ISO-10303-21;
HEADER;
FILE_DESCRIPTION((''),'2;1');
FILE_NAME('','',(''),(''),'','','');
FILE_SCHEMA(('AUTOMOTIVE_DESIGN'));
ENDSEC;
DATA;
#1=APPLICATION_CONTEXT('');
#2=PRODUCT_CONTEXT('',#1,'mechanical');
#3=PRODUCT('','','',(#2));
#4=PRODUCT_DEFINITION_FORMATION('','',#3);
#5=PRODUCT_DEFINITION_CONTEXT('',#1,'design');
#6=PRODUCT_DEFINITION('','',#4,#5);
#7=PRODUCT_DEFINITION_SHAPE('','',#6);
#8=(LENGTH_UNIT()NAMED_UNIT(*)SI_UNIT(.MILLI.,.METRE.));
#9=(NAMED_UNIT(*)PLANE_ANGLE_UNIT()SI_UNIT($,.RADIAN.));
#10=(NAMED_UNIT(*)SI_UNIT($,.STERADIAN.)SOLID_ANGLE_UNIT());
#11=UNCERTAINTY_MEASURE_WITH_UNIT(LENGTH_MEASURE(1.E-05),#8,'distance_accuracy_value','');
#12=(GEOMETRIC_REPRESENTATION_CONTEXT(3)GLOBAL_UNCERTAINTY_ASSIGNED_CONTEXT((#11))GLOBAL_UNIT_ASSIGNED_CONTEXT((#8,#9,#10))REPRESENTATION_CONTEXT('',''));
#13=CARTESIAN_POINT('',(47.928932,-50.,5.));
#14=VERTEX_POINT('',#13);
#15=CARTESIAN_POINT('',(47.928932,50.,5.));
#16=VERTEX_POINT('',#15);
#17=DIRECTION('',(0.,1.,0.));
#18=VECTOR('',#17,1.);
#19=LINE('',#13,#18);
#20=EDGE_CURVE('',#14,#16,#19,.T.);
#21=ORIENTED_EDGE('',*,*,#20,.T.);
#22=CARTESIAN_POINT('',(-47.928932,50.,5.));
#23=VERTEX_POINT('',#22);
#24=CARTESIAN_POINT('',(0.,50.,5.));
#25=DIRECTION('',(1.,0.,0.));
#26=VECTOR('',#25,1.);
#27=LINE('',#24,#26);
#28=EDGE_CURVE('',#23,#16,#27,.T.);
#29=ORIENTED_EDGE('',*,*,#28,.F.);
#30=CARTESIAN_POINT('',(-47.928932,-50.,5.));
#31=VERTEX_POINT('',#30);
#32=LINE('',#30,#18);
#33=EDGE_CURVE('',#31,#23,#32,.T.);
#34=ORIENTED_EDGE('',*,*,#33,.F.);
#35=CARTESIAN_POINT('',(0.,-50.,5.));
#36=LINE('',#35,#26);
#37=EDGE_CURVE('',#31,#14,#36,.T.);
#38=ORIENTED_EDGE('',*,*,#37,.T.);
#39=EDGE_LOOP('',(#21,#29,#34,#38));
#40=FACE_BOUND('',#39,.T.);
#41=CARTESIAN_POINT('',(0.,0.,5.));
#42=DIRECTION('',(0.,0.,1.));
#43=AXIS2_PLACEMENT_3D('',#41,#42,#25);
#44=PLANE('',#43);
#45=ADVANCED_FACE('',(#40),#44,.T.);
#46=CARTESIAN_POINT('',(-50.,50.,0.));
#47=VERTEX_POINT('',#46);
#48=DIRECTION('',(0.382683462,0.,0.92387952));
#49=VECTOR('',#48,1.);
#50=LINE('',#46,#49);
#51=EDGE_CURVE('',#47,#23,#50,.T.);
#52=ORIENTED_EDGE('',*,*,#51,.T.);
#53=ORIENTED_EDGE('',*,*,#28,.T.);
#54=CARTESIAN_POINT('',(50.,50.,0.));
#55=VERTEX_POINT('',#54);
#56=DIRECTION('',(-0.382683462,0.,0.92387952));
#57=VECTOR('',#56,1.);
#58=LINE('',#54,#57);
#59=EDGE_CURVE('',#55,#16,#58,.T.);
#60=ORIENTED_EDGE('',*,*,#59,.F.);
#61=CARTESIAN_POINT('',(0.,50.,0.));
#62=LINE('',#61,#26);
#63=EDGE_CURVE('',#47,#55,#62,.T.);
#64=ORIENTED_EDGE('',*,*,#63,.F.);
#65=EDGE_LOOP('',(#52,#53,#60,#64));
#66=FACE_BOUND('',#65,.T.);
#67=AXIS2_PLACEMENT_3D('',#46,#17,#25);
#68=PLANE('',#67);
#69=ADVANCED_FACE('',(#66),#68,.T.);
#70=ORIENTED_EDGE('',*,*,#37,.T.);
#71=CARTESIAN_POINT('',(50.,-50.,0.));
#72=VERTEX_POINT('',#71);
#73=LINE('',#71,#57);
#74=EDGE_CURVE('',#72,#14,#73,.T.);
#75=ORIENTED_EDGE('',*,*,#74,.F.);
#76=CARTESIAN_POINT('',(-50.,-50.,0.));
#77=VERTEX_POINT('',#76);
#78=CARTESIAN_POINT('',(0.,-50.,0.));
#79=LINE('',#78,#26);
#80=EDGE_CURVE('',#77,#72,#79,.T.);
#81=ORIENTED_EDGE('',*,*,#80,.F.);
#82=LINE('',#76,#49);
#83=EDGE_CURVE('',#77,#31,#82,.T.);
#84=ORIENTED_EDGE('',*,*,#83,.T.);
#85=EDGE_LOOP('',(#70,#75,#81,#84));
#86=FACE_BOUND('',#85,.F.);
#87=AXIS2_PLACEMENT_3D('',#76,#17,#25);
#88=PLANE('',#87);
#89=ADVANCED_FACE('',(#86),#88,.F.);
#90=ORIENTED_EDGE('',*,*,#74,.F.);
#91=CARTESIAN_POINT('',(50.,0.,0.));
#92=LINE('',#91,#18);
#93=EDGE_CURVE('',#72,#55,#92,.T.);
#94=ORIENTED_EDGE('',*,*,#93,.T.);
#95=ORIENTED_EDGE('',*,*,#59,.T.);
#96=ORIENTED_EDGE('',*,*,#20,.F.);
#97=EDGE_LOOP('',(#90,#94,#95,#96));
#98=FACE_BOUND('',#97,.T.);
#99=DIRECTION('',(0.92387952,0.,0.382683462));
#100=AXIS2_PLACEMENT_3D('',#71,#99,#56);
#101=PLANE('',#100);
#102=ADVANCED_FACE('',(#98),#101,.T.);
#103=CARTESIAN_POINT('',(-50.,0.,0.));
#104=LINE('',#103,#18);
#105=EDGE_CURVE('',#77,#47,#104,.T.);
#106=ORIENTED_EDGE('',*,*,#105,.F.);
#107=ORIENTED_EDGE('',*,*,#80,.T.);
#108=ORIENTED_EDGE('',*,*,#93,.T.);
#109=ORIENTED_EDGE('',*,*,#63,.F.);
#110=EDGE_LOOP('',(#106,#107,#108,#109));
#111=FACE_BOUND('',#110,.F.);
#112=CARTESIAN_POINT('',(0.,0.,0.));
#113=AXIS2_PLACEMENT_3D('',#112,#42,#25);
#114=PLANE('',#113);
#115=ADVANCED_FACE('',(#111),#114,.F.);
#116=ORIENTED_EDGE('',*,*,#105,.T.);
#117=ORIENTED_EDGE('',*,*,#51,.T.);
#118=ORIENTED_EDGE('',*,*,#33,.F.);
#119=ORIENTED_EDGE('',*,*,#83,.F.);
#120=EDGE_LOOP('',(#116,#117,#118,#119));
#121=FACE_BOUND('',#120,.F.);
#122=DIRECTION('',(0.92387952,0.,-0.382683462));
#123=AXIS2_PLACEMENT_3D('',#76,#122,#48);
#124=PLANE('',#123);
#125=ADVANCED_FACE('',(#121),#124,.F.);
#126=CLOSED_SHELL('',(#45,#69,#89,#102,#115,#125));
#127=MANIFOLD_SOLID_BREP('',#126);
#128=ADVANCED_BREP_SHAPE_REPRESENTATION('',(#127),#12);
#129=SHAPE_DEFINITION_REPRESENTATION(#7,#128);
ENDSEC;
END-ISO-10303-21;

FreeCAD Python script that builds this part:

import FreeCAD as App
import Part
import Sketcher
from FreeCAD import Vector
Q = App.Units.Quantity


def add_polygon(sketch, points):
    """Adds a closed chain of lines whose ends are joined by coincident constraints."""
    first, n = sketch.GeometryCount, len(points)
    for a, b in zip(points, points[1:] + points[:1]):
        sketch.addGeometry(Part.LineSegment(App.Vector(*a, 0), App.Vector(*b, 0)), False)
    for i in range(n):
        sketch.addConstraint(Sketcher.Constraint("Coincident", first + i, 2, first + (i + 1) % n, 1))

doc = App.newDocument("Part")
params = doc.addObject("Spreadsheet::Sheet", "Params")
for row, (alias, value) in enumerate([
    ("sketch1_width", "100 mm"),
    ("pad1_length", "5 mm"),
    ("sketch2_height", "5 mm"),
    ("pocket1_length", "100 mm"),
    ("sketch3_height", "5 mm"),
    ("pocket2_length", "100 mm"),
], start=1):
    params.set(f"A{row}", alias)
    params.set(f"B{row}", "=" + value)
    params.setAlias(f"B{row}", alias)

body = doc.addObject("PartDesign::Body", "Body")

# Sketch on XY plane
sketch1 = body.newObject("Sketcher::SketchObject", "Sketch")
sketch1.AttachmentSupport = (doc.getObject("XY_Plane"), [""])
sketch1.MapMode = "FlatFace"
add_polygon(sketch1, [(-50, 50), (-50, -50), (50, -50), (50, 50)])  # lines 0-3
sketch1.addConstraint(Sketcher.Constraint("Vertical", 0))
sketch1.addConstraint(Sketcher.Constraint("Horizontal", 1))
sketch1.addConstraint(Sketcher.Constraint("Vertical", 2))
sketch1.addConstraint(Sketcher.Constraint("Horizontal", 3))
sketch1.addConstraint(Sketcher.Constraint("Symmetric", 0, 2, 2, 2, -1, 1))
sketch1.addConstraint(Sketcher.Constraint("Equal", 3, 0))
sketch1.addConstraint(Sketcher.Constraint("DistanceX", 1, 1, 1, 2, 100.0))
sketch1.setExpression("Constraints[10]", "Params.sketch1_width")
pad1 = body.newObject("PartDesign::Pad", "Pad")
pad1.Profile = sketch1
pad1.setExpression("Length", "Params.pad1_length")

# Sketch on XZ plane
sketch2 = body.newObject("Sketcher::SketchObject", "Sketch001")
sketch2.AttachmentSupport = (doc.getObject("XZ_Plane"), [""])
sketch2.MapMode = "FlatFace"
sketch2.AttachmentOffset = App.Placement(Vector(0, 0, 50), App.Rotation())
add_polygon(sketch2, [(-50, 0), (-47.9, 5), (-50, 5)])  # lines 0-2
sketch2.addConstraint(Sketcher.Constraint("Horizontal", 1))
sketch2.addConstraint(Sketcher.Constraint("Vertical", 2))
sketch2.addConstraint(Sketcher.Constraint("PointOnObject", 2, 2, -1))
sketch2.addConstraint(Sketcher.Constraint("DistanceY", 2, 2, 2, 1, 5.0))
sketch2.addConstraint(Sketcher.Constraint("DistanceX", 1, 2, -1, 1, 50.0))
sketch2.addConstraint(Sketcher.Constraint("Angle", 0, Q("67.499998 deg")))
sketch2.setExpression("Constraints[6]", "Params.sketch2_height")
pocket1 = body.newObject("PartDesign::Pocket", "Pocket")
pocket1.Profile = sketch2
pocket1.setExpression("Length", "Params.pocket1_length")

# Sketch on XZ plane
sketch3 = body.newObject("Sketcher::SketchObject", "Sketch002")
sketch3.AttachmentSupport = (doc.getObject("XZ_Plane"), [""])
sketch3.MapMode = "FlatFace"
sketch3.AttachmentOffset = App.Placement(Vector(0, 0, 50), App.Rotation())
add_polygon(sketch3, [(47.9, 5), (50, 0), (50, 5)])  # lines 0-2
sketch3.addConstraint(Sketcher.Constraint("Vertical", 1))
sketch3.addConstraint(Sketcher.Constraint("Horizontal", 2))
sketch3.addConstraint(Sketcher.Constraint("PointOnObject", 0, 2, -1))
sketch3.addConstraint(Sketcher.Constraint("DistanceY", 1, 1, 1, 2, 5.0))
sketch3.addConstraint(Sketcher.Constraint("DistanceX", -1, 1, 0, 2, 50.0))
sketch3.addConstraint(Sketcher.Constraint("Angle", 0, Q("-67.499998 deg")))
sketch3.setExpression("Constraints[6]", "Params.sketch3_height")
pocket2 = body.newObject("PartDesign::Pocket", "Pocket001")
pocket2.Profile = sketch3
pocket2.setExpression("Length", "Params.pocket2_length")

doc.recompute()
